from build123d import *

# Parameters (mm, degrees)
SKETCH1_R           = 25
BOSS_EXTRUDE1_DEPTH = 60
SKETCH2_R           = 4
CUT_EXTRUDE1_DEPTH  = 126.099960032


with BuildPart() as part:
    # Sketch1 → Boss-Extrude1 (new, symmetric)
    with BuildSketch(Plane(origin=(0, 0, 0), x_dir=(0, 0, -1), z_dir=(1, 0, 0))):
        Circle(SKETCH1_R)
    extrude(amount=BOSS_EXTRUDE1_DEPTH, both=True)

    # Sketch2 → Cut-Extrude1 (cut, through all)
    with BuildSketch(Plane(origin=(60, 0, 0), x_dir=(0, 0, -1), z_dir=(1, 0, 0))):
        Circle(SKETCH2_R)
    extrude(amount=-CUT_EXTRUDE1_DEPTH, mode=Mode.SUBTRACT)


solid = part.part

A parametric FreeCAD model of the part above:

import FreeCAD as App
import Part
import Sketcher
from FreeCAD import Vector

doc = App.newDocument("Part")
body = doc.addObject("PartDesign::Body", "Body")

# Sketch on YZ plane
sketch1 = body.newObject("Sketcher::SketchObject", "Sketch")
sketch1.AttachmentSupport = (doc.getObject("YZ_Plane"), [""])
sketch1.MapMode = "FlatFace"
sketch1.addGeometry(Part.Circle(Vector(0, 0, 0), Vector(0, 0, 1), 25), False)
sketch1.addConstraint([
    Sketcher.Constraint("Coincident", 0, 3, -1, 1),
    Sketcher.Constraint("Diameter", 0, 50.0),
])
pad1 = body.newObject("PartDesign::Pad", "Pad")
pad1.Profile = sketch1
pad1.Length = 120
pad1.Midplane = True

# Sketch on YZ plane
sketch2 = body.newObject("Sketcher::SketchObject", "Sketch001")
sketch2.AttachmentSupport = (doc.getObject("YZ_Plane"), [""])
sketch2.MapMode = "FlatFace"
sketch2.AttachmentOffset = App.Placement(Vector(0, 0, 60), App.Rotation())
sketch2.addGeometry(Part.Circle(Vector(0, 0, 0), Vector(0, 0, 1), 4), False)
sketch2.addConstraint([
    Sketcher.Constraint("Coincident", 0, 3, -1, 1),
    Sketcher.Constraint("Diameter", 0, 8.0),
])
pocket1 = body.newObject("PartDesign::Pocket", "Pocket")
pocket1.Profile = sketch2
pocket1.Type = "ThroughAll"

doc.recompute()
